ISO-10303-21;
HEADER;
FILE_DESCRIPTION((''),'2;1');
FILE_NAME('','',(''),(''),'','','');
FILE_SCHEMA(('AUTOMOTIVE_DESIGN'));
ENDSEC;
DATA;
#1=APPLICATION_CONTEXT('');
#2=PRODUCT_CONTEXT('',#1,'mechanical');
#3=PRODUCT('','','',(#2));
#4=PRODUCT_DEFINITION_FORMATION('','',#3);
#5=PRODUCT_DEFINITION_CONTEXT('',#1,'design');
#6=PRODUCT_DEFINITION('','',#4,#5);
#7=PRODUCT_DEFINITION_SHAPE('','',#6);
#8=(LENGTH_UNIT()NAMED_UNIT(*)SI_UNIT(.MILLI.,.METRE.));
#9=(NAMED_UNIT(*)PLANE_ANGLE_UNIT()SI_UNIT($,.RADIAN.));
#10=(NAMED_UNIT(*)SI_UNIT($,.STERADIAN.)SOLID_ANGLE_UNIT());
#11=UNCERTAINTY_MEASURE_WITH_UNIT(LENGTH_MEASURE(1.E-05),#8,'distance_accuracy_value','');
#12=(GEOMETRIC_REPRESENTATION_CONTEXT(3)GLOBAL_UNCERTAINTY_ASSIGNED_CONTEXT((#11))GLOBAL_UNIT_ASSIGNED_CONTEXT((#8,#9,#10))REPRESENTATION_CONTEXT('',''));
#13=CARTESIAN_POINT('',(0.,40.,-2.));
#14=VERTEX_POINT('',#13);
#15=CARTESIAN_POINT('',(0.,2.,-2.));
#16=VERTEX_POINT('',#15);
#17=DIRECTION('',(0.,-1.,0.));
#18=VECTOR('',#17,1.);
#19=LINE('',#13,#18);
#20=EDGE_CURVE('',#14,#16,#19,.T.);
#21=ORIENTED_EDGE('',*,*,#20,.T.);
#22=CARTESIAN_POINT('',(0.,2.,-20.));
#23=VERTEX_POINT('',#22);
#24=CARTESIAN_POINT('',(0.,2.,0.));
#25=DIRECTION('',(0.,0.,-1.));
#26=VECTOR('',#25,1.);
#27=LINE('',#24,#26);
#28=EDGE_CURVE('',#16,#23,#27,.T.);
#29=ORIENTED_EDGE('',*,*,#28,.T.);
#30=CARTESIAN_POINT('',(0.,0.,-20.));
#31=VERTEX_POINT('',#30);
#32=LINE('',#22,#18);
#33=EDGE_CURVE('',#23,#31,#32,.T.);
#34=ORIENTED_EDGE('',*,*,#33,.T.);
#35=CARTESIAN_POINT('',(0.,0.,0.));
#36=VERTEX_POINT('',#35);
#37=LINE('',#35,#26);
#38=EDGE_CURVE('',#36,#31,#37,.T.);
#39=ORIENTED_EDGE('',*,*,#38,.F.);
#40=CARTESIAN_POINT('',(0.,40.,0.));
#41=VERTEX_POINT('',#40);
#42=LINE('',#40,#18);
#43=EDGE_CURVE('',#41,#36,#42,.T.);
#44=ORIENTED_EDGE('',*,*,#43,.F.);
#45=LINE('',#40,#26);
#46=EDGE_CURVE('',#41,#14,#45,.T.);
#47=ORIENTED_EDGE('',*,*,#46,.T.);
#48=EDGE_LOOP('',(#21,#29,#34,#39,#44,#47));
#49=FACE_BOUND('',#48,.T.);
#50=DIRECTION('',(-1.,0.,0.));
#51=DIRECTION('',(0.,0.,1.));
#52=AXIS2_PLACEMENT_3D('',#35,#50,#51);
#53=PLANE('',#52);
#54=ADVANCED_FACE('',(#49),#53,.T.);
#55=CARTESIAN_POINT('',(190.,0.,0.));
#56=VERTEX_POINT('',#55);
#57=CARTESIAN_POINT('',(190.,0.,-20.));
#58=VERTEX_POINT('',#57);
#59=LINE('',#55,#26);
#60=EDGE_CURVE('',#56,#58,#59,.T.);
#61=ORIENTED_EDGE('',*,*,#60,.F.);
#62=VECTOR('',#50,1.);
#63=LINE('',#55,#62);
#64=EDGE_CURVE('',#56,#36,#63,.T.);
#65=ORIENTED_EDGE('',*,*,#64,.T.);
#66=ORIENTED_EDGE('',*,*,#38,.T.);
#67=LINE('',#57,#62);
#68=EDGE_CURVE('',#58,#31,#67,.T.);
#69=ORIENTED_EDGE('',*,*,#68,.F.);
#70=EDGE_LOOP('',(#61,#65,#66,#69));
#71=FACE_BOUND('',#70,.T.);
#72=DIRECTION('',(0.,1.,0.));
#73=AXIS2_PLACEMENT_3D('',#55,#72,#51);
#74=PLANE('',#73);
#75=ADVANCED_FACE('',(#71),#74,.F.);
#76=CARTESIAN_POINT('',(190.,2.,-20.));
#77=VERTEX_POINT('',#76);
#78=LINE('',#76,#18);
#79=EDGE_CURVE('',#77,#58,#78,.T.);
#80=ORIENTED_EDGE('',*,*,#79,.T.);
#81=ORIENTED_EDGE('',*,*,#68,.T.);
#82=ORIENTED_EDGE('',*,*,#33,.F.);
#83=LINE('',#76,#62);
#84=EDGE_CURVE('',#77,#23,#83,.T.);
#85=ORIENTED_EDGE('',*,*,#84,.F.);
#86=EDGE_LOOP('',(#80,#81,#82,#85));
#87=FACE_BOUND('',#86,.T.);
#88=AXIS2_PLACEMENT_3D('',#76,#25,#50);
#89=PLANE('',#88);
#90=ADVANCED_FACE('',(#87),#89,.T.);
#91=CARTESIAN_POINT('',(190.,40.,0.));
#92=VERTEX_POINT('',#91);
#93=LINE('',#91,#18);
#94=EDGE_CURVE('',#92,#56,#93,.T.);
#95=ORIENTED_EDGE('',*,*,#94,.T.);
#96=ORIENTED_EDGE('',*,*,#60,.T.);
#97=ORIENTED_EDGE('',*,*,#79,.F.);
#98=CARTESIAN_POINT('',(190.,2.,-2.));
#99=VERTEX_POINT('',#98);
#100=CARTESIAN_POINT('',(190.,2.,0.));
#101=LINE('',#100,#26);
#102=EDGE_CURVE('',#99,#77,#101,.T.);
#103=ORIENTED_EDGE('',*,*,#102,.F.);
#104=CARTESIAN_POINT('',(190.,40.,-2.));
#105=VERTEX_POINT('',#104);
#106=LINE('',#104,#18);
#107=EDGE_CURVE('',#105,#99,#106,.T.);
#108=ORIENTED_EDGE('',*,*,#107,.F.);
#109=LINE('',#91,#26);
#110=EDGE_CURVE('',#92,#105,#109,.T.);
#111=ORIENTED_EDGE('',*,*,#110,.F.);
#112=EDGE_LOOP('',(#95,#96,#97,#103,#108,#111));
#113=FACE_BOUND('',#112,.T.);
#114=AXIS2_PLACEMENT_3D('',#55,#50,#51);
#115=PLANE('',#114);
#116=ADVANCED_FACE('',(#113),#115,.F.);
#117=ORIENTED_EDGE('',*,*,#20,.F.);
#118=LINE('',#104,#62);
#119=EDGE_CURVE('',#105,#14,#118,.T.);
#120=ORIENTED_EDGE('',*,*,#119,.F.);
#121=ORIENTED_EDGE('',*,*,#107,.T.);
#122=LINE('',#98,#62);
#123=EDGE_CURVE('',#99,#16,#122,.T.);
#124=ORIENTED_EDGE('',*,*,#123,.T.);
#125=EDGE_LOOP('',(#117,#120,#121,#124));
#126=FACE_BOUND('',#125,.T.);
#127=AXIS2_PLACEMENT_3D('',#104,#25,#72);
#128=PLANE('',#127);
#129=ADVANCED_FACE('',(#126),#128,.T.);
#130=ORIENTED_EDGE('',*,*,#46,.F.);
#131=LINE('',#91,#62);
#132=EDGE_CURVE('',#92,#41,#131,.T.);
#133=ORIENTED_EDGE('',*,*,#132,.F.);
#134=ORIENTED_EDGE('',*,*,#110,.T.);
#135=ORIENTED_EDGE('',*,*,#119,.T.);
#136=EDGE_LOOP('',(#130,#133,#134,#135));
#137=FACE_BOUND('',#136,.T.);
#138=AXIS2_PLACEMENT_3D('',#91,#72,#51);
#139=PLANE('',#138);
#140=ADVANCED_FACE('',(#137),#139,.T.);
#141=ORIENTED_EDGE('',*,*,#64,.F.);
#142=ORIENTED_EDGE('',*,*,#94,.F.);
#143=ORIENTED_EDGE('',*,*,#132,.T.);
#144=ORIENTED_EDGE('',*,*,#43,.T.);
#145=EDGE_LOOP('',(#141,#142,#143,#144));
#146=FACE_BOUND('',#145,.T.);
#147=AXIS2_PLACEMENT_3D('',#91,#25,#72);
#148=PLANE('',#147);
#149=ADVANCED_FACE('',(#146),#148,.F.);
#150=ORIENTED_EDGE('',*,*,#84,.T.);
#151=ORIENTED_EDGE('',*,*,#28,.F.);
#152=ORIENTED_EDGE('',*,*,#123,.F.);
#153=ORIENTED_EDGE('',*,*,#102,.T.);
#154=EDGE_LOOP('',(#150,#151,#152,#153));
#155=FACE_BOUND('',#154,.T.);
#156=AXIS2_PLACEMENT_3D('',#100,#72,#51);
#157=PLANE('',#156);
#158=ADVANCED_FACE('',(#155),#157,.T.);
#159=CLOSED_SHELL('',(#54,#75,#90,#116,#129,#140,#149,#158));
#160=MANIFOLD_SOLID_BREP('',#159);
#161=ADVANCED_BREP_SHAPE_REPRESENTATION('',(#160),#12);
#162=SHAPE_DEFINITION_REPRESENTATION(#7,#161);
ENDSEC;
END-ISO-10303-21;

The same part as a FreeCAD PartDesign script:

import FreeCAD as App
import Part
import Sketcher


def add_polygon(sketch, points):
    """Adds a closed chain of lines whose ends are joined by coincident constraints."""
    first, n = sketch.GeometryCount, len(points)
    for a, b in zip(points, points[1:] + points[:1]):
        sketch.addGeometry(Part.LineSegment(App.Vector(*a, 0), App.Vector(*b, 0)), False)
    for i in range(n):
        sketch.addConstraint(Sketcher.Constraint("Coincident", first + i, 2, first + (i + 1) % n, 1))

doc = App.newDocument("Part")
body = doc.addObject("PartDesign::Body", "Body")

sketch1 = body.newObject("Sketcher::SketchObject", "Sketch")
sketch1.AttachmentSupport = (doc.getObject("YZ_Plane"), [""])
sketch1.MapMode = "FlatFace"
add_polygon(sketch1, [(40, 0), (0, 0), (0, -20), (2, -20), (2, -2), (40, -2)])
sketch1.addConstraint([
    Sketcher.Constraint("Horizontal", 0),
    Sketcher.Constraint("Vertical", 1),
    Sketcher.Constraint("Horizontal", 2),
    Sketcher.Constraint("Vertical", 3),
    Sketcher.Constraint("Horizontal", 4),
    Sketcher.Constraint("Vertical", 5),
    Sketcher.Constraint("Coincident", 0, 2, -1, 1),
    Sketcher.Constraint("Equal", 2, 5),
    Sketcher.Constraint("DistanceX", 0, 2, 0, 1, 40.0),
    Sketcher.Constraint("DistanceX", 2, 1, 2, 2, 2.0),
    Sketcher.Constraint("DistanceY", 1, 2, 1, 1, 20.0),
])
pad1 = body.newObject("PartDesign::Pad", "Pad")
pad1.Profile = sketch1
pad1.Length = 190

doc.recompute()
